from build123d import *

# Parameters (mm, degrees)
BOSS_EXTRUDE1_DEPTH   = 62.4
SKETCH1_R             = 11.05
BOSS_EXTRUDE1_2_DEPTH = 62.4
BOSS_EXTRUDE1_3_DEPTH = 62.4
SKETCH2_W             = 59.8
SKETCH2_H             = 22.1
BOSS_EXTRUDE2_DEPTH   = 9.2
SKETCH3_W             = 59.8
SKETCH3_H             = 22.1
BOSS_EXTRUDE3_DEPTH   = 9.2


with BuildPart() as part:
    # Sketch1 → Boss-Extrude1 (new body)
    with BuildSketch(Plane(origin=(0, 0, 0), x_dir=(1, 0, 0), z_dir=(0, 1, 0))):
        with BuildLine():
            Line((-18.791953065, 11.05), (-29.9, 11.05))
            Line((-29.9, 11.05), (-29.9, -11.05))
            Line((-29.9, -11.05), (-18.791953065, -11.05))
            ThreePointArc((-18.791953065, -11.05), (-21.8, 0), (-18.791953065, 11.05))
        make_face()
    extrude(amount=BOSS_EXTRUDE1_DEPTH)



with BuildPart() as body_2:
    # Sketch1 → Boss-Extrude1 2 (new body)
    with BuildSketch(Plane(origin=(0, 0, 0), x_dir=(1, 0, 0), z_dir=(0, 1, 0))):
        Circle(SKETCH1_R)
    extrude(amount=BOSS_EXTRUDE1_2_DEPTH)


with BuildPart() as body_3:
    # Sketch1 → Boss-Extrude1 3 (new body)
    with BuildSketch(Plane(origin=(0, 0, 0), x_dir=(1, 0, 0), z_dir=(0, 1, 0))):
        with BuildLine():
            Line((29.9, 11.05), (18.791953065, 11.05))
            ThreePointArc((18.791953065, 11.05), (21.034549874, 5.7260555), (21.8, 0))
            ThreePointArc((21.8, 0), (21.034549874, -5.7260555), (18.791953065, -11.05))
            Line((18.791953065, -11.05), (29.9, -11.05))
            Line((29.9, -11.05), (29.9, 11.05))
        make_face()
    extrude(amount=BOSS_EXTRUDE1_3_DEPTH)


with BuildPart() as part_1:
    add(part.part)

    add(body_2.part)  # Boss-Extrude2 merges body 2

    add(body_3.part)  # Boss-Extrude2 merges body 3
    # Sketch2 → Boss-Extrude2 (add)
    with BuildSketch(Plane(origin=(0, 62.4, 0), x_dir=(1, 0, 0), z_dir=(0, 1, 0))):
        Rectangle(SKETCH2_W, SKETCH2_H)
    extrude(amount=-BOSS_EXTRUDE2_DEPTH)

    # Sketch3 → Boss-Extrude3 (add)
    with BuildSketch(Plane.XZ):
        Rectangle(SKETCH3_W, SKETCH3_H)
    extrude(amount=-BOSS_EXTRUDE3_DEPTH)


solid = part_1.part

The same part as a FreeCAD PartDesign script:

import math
import FreeCAD as App
import Part
import Sketcher
from FreeCAD import Vector
Q = App.Units.Quantity


def add_polygon(sketch, points):
    """Adds a closed chain of lines whose ends are joined by coincident constraints."""
    first, n = sketch.GeometryCount, len(points)
    for a, b in zip(points, points[1:] + points[:1]):
        sketch.addGeometry(Part.LineSegment(App.Vector(*a, 0), App.Vector(*b, 0)), False)
    for i in range(n):
        sketch.addConstraint(Sketcher.Constraint("Coincident", first + i, 2, first + (i + 1) % n, 1))

doc = App.newDocument("Part")
body = doc.addObject("PartDesign::Body", "Body")

sketch1 = doc.addObject("Sketcher::SketchObject", "Sketch")
body.addObject(sketch1)
sketch1.AttachmentSupport = (doc.XZ_Plane, [""])
sketch1.MapMode = "FlatFace"
sketch1.addGeometry([
    Part.LineSegment(Vector(-19, -11, 0), Vector(-30, -11, 0)),
    Part.LineSegment(Vector(-30, -11, 0), Vector(-30, 11, 0)),
    Part.LineSegment(Vector(-30, 11, 0), Vector(-19, 11, 0)),
    Part.ArcOfCircle(Part.Circle(Vector(0, 0, 0), Vector(0, 0, 1), 22), math.radians(150), math.radians(210)),
], False)
sketch1.addConstraint([
    Sketcher.Constraint("Coincident", 0, 2, 1, 1),
    Sketcher.Constraint("Coincident", 1, 2, 2, 1),
    Sketcher.Constraint("Coincident", 2, 2, 3, 1),
    Sketcher.Constraint("Coincident", 3, 2, 0, 1),
    Sketcher.Constraint("Horizontal", 0),
    Sketcher.Constraint("Vertical", 1),
    Sketcher.Constraint("Horizontal", 2),
    Sketcher.Constraint("Coincident", 3, 3, -1, 1),
    Sketcher.Constraint("Vertical", 2, 2, 3, 2),
    Sketcher.Constraint("Radius", 3, Q("21.8 mm")),
    Sketcher.Constraint("DistanceY", 1, 1, 1, 2, Q("22.1 mm")),
    Sketcher.Constraint("DistanceX", 0, 2, -1, 1, Q("29.9 mm")),
])
pad1 = doc.addObject("PartDesign::Pad", "Pad")
body.addObject(pad1)
pad1.Profile = sketch1
pad1.Length = 62.4
pad1.Reversed = True
body2 = doc.addObject("PartDesign::Body", "Body001")

sketch2 = doc.addObject("Sketcher::SketchObject", "Sketch001")
body2.addObject(sketch2)
sketch2.AttachmentSupport = (doc.getObject("XZ_Plane001"), [""])
sketch2.MapMode = "FlatFace"
sketch2.addGeometry(Part.Circle(Vector(0, 0, 0), Vector(0, 0, 1), 11), False)
sketch2.addConstraint([
    Sketcher.Constraint("Coincident", 0, 3, -1, 1),
    Sketcher.Constraint("Diameter", 0, Q("22.1 mm")),
])
pad2 = doc.addObject("PartDesign::Pad", "Pad001")
body2.addObject(pad2)
pad2.Profile = sketch2
pad2.Length = 62.4
pad2.Reversed = True
body3 = doc.addObject("PartDesign::Body", "Body002")

sketch3 = doc.addObject("Sketcher::SketchObject", "Sketch002")
body3.addObject(sketch3)
sketch3.AttachmentSupport = (doc.getObject("XZ_Plane002"), [""])
sketch3.MapMode = "FlatFace"
sketch3.addGeometry([
    Part.LineSegment(Vector(30, -11, 0), Vector(19, -11, 0)),
    Part.ArcOfCircle(Part.Circle(Vector(0, 0, 0), Vector(0, 0, 1), 22), math.radians(-30), math.radians(0)),
    Part.ArcOfCircle(Part.Circle(Vector(0, 0, 0), Vector(0, 0, 1), 22), math.radians(0), math.radians(30)),
    Part.LineSegment(Vector(19, 11, 0), Vector(30, 11, 0)),
    Part.LineSegment(Vector(30, 11, 0), Vector(30, -11, 0)),
], False)
sketch3.addConstraint([
    Sketcher.Constraint("Coincident", 0, 2, 1, 1),
    Sketcher.Constraint("Tangent", 1, 2, 2, 1),
    Sketcher.Constraint("Coincident", 2, 2, 3, 1),
    Sketcher.Constraint("Coincident", 3, 2, 4, 1),
    Sketcher.Constraint("Coincident", 4, 2, 0, 1),
    Sketcher.Constraint("Horizontal", 0),
    Sketcher.Constraint("Horizontal", 3),
    Sketcher.Constraint("Vertical", 4),
    Sketcher.Constraint("Coincident", 1, 3, -1, 1),
    Sketcher.Constraint("Equal", 1, 2),
    Sketcher.Constraint("PointOnObject", 1, 2, -1),
    Sketcher.Constraint("Vertical", 0, 2, 2, 2),
    Sketcher.Constraint("Radius", 1, Q("21.8 mm")),
    Sketcher.Constraint("DistanceY", 4, 2, 4, 1, Q("22.1 mm")),
    Sketcher.Constraint("DistanceX", -1, 1, 3, 2, Q("29.9 mm")),
])
pad3 = doc.addObject("PartDesign::Pad", "Pad002")
body3.addObject(pad3)
pad3.Profile = sketch3
pad3.Length = 62.4
pad3.Reversed = True
body.AllowCompound = True
doc.recompute()

boolean = doc.addObject("PartDesign::Boolean", "Boolean")
body.addObject(boolean)
boolean.Type = "Fuse"
boolean.addObjects([body2])
doc.recompute()

boolean2 = doc.addObject("PartDesign::Boolean", "Boolean001")
body.addObject(boolean2)
boolean2.Type = "Fuse"
boolean2.addObjects([body3])

sketch4 = doc.addObject("Sketcher::SketchObject", "Sketch003")
body.addObject(sketch4)
sketch4.AttachmentSupport = (doc.XZ_Plane, [""])
sketch4.MapMode = "FlatFace"
sketch4.AttachmentOffset = App.Placement(Vector(0, 0, -62.4), App.Rotation())
add_polygon(sketch4, [(-30, -11), (-30, 11), (30, 11), (30, -11)])
sketch4.addConstraint([
    Sketcher.Constraint("Vertical", 0),
    Sketcher.Constraint("Horizontal", 1),
    Sketcher.Constraint("Vertical", 2),
    Sketcher.Constraint("Horizontal", 3),
    Sketcher.Constraint("Symmetric", 0, 2, 2, 2, -1, 1),
    Sketcher.Constraint("DistanceX", 1, 1, 1, 2, Q("59.8 mm")),
    Sketcher.Constraint("DistanceY", 0, 1, 0, 2, Q("22.1 mm")),
])
pad4 = doc.addObject("PartDesign::Pad", "Pad003")
body.addObject(pad4)
pad4.Profile = sketch4
pad4.Length = 9.2

sketch5 = doc.addObject("Sketcher::SketchObject", "Sketch004")
body.addObject(sketch5)
sketch5.AttachmentSupport = (doc.XZ_Plane, [""])
sketch5.MapMode = "FlatFace"
add_polygon(sketch5, [(-30, 11), (-30, -11), (30, -11), (30, 11)])
sketch5.addConstraint([
    Sketcher.Constraint("Vertical", 0),
    Sketcher.Constraint("Horizontal", 1),
    Sketcher.Constraint("Vertical", 2),
    Sketcher.Constraint("Horizontal", 3),
    Sketcher.Constraint("Symmetric", 0, 2, 2, 2, -1, 1),
    Sketcher.Constraint("DistanceX", 1, 1, 1, 2, Q("59.8 mm")),
    Sketcher.Constraint("DistanceY", 0, 2, 0, 1, Q("22.1 mm")),
])
pad5 = doc.addObject("PartDesign::Pad", "Pad004")
body.addObject(pad5)
pad5.Profile = sketch5
pad5.Length = 9.2
pad5.Reversed = True

doc.recompute()
